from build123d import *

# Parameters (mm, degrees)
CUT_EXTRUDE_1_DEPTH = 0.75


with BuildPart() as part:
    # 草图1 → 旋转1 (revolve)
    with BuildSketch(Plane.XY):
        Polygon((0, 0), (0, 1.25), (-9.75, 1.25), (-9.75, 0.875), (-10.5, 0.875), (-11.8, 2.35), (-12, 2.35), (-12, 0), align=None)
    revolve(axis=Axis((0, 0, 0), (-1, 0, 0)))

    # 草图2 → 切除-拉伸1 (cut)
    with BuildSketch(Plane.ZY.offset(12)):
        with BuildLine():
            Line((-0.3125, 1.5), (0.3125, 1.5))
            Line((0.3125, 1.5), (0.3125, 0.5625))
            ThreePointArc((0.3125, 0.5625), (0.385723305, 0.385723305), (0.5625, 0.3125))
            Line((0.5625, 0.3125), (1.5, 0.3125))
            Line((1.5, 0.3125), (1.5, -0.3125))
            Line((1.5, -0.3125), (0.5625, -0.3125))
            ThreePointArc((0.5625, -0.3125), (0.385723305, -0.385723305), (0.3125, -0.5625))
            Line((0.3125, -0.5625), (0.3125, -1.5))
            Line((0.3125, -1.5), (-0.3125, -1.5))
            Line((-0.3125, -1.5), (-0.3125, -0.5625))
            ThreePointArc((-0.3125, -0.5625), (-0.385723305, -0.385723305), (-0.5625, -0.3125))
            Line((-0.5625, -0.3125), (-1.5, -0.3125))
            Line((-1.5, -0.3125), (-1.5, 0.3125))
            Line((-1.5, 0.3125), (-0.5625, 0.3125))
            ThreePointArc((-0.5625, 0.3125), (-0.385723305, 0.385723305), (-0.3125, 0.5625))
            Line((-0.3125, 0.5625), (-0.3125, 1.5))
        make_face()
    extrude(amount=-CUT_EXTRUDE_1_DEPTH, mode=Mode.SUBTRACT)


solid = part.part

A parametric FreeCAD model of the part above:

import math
import FreeCAD as App
import Part
import Sketcher


def add_polygon(sketch, points):
    """Adds a closed chain of lines whose ends are joined by coincident constraints."""
    first, n = sketch.GeometryCount, len(points)
    for a, b in zip(points, points[1:] + points[:1]):
        sketch.addGeometry(Part.LineSegment(App.Vector(*a, 0), App.Vector(*b, 0)), False)
    for i in range(n):
        sketch.addConstraint(Sketcher.Constraint("Coincident", first + i, 2, first + (i + 1) % n, 1))

doc = App.newDocument("Part")
body = doc.addObject("PartDesign::Body", "Body")

sketch1 = body.newObject("Sketcher::SketchObject", "Sketch")
sketch1.AttachmentSupport = (doc.getObject("XY_Plane"), [""])
sketch1.MapMode = "FlatFace"
add_polygon(sketch1, [(0, 0), (0, 1.25), (-9.75, 1.25), (-9.75, 0.88), (-10.5, 0.88), (-11.8, 2.35), (-12, 2.35), (-12, 0)])
sketch1.addConstraint([
    Sketcher.Constraint("Vertical", 0),
    Sketcher.Constraint("Horizontal", 1),
    Sketcher.Constraint("Vertical", 2),
    Sketcher.Constraint("Horizontal", 3),
    Sketcher.Constraint("Horizontal", 5),
    Sketcher.Constraint("Vertical", 6),
    Sketcher.Constraint("Horizontal", 7),
    Sketcher.Constraint("Coincident", 7, 2, -1, 1),
    Sketcher.Constraint("DistanceX", 7, 1, 7, 2, 12.0),
    Sketcher.Constraint("DistanceX", 5, 2, 5, 1, 0.2),
    Sketcher.Constraint("DistanceX", 1, 2, 1, 1, 9.75),
    Sketcher.Constraint("DistanceX", 3, 2, 3, 1, 0.75),
    Sketcher.Constraint("DistanceY", 0, 1, 0, 2, 1.25),
    Sketcher.Constraint("DistanceY", 6, 2, 6, 1, 2.35),
    Sketcher.Constraint("DistanceY", 2, 2, 2, 1, 0.375),
])
revolution = body.newObject("PartDesign::Revolution", "Revolution")
revolution.Profile = sketch1
revolution.ReferenceAxis = (sketch1, ["H_Axis"])
revolution.Angle = 360

sketch2 = body.newObject("Sketcher::SketchObject", "Sketch001")
sketch2.AttachmentSupport = (doc.getObject("YZ_Plane"), [""])
sketch2.MapMode = "FlatFace"
sketch2.AttachmentOffset = App.Placement(App.Vector(0, 0, -12), App.Rotation())
sketch2.addGeometry([
    Part.LineSegment(App.Vector(1.5, 0.31, 0), App.Vector(1.5, -0.31, 0)),
    Part.LineSegment(App.Vector(1.5, -0.31, 0), App.Vector(0.56, -0.31, 0)),
    Part.ArcOfCircle(Part.Circle(App.Vector(0.56, -0.56, 0), App.Vector(0, 0, 1), 0.25), math.radians(90), math.radians(180)),
    Part.LineSegment(App.Vector(0.31, -0.56, 0), App.Vector(0.31, -1.5, 0)),
    Part.LineSegment(App.Vector(0.31, -1.5, 0), App.Vector(-0.31, -1.5, 0)),
    Part.LineSegment(App.Vector(-0.31, -1.5, 0), App.Vector(-0.31, -0.56, 0)),
    Part.ArcOfCircle(Part.Circle(App.Vector(-0.56, -0.56, 0), App.Vector(0, 0, 1), 0.25), math.radians(0), math.radians(90)),
    Part.LineSegment(App.Vector(-0.56, -0.31, 0), App.Vector(-1.5, -0.31, 0)),
    Part.LineSegment(App.Vector(-1.5, -0.31, 0), App.Vector(-1.5, 0.31, 0)),
    Part.LineSegment(App.Vector(-1.5, 0.31, 0), App.Vector(-0.56, 0.31, 0)),
    Part.ArcOfCircle(Part.Circle(App.Vector(-0.56, 0.56, 0), App.Vector(0, 0, 1), 0.25), math.radians(-90), math.radians(0)),
    Part.LineSegment(App.Vector(-0.31, 0.56, 0), App.Vector(-0.31, 1.5, 0)),
    Part.LineSegment(App.Vector(-0.31, 1.5, 0), App.Vector(0.31, 1.5, 0)),
    Part.LineSegment(App.Vector(0.31, 1.5, 0), App.Vector(0.31, 0.56, 0)),
    Part.ArcOfCircle(Part.Circle(App.Vector(0.56, 0.56, 0), App.Vector(0, 0, 1), 0.25), math.radians(-180), math.radians(-90)),
    Part.LineSegment(App.Vector(0.56, 0.31, 0), App.Vector(1.5, 0.31, 0)),
], False)
sketch2.addConstraint([
    Sketcher.Constraint("Coincident", 0, 2, 1, 1),
    Sketcher.Constraint("Tangent", 1, 2, 2, 1),
    Sketcher.Constraint("Tangent", 2, 2, 3, 1),
    Sketcher.Constraint("Coincident", 3, 2, 4, 1),
    Sketcher.Constraint("Coincident", 4, 2, 5, 1),
    Sketcher.Constraint("Tangent", 5, 2, 6, 1),
    Sketcher.Constraint("Tangent", 6, 2, 7, 1),
    Sketcher.Constraint("Coincident", 7, 2, 8, 1),
    Sketcher.Constraint("Coincident", 8, 2, 9, 1),
    Sketcher.Constraint("Tangent", 9, 2, 10, 1),
    Sketcher.Constraint("Tangent", 10, 2, 11, 1),
    Sketcher.Constraint("Coincident", 11, 2, 12, 1),
    Sketcher.Constraint("Coincident", 12, 2, 13, 1),
    Sketcher.Constraint("Tangent", 13, 2, 14, 1),
    Sketcher.Constraint("Tangent", 14, 2, 15, 1),
    Sketcher.Constraint("Coincident", 15, 2, 0, 1),
    Sketcher.Constraint("Vertical", 0),
    Sketcher.Constraint("Horizontal", 1),
    Sketcher.Constraint("Vertical", 3),
    Sketcher.Constraint("Horizontal", 4),
    Sketcher.Constraint("Vertical", 5),
    Sketcher.Constraint("Horizontal", 7),
    Sketcher.Constraint("Vertical", 8),
    Sketcher.Constraint("Horizontal", 9),
    Sketcher.Constraint("Vertical", 11),
    Sketcher.Constraint("Horizontal", 12),
    Sketcher.Constraint("Vertical", 13),
    Sketcher.Constraint("Horizontal", 15),
    Sketcher.Constraint("Equal", 2, 6),
    Sketcher.Constraint("Equal", 6, 10),
    Sketcher.Constraint("Equal", 10, 14),
    Sketcher.Constraint("Symmetric", 2, 3, 10, 3, -1, 1),
    Sketcher.Constraint("Symmetric", 6, 3, 14, 3, -1, 1),
    Sketcher.Constraint("Symmetric", 2, 3, 6, 3, -2),
    Sketcher.Constraint("Equal", 1, 7),
    Sketcher.Constraint("Equal", 12, 0),
    Sketcher.Constraint("Equal", 15, 3),
    Sketcher.Constraint("Equal", 5, 11),
    Sketcher.Constraint("Radius", 2, 0.25),
    Sketcher.Constraint("DistanceX", -1, 1, 0, 2, 1.5),
    Sketcher.Constraint("DistanceX", 4, 2, 4, 1, 0.625),
])
pocket1 = body.newObject("PartDesign::Pocket", "Pocket")
pocket1.Profile = sketch2
pocket1.Length = 0.75
pocket1.Reversed = True

doc.recompute()
